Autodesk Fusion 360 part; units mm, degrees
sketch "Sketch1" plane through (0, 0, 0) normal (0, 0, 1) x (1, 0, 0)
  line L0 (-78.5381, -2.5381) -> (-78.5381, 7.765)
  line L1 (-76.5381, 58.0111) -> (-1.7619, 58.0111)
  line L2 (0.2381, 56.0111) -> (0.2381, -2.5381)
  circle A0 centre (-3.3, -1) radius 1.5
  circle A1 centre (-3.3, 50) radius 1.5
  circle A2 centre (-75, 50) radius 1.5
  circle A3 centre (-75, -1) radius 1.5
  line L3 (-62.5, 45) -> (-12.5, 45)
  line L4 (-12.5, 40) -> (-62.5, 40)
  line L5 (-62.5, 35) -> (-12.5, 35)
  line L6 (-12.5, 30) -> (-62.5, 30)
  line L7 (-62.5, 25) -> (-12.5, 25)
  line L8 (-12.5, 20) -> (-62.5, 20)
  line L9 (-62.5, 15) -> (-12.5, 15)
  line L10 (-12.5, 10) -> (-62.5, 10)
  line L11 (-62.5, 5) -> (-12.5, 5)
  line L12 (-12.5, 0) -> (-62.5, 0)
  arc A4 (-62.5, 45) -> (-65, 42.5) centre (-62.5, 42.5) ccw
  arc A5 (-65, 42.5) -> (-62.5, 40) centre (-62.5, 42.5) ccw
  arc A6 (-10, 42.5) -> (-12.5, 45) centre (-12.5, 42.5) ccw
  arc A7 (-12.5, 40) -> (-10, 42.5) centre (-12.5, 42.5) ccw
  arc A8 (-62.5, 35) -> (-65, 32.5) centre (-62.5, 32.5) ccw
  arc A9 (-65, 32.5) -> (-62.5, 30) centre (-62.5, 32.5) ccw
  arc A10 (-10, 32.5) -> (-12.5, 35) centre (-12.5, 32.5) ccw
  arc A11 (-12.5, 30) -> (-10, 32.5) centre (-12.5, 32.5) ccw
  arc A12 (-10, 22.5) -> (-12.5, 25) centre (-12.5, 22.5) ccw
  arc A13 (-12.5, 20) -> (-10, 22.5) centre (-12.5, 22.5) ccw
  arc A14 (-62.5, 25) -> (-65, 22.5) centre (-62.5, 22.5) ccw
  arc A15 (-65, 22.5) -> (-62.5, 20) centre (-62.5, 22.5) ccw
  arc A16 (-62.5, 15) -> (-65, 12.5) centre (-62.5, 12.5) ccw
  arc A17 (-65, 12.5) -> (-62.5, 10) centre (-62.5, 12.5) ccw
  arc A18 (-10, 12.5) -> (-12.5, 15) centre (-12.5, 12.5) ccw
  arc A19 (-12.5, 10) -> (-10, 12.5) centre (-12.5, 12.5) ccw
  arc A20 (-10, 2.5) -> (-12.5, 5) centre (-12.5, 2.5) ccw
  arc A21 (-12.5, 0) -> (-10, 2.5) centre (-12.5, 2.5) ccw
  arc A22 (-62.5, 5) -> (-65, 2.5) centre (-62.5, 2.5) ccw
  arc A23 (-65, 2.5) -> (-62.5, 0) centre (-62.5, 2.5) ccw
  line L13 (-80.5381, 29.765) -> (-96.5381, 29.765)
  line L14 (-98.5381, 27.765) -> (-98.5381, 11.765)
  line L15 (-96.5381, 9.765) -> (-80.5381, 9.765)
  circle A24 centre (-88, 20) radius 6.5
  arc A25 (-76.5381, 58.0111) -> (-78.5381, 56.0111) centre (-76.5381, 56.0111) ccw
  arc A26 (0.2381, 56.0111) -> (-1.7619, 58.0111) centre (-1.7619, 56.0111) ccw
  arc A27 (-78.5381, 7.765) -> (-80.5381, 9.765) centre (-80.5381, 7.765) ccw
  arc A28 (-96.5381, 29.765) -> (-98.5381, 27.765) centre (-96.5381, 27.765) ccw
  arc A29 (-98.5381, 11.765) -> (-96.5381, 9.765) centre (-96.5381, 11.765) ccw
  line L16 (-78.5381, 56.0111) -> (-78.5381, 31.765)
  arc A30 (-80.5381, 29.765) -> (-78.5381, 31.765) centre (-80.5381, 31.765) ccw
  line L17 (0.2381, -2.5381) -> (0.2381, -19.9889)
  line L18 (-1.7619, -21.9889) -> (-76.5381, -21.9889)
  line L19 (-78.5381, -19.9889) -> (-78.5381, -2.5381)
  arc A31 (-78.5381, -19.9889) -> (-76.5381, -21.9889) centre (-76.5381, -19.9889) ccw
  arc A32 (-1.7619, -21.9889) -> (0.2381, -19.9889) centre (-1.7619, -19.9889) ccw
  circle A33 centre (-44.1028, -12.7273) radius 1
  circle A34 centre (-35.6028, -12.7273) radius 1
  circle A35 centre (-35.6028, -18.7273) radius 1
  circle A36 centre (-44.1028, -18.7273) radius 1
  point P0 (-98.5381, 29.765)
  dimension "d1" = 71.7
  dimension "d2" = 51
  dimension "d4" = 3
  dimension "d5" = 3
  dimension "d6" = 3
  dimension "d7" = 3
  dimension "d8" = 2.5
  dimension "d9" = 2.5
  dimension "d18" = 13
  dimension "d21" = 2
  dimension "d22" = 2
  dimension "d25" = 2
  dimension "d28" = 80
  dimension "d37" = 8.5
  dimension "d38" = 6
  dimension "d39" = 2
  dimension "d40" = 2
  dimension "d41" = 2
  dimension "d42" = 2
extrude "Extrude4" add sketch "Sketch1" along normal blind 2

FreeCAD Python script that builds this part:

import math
import FreeCAD as App
import Part
import Sketcher

doc = App.newDocument("Part")
body = doc.addObject("PartDesign::Body", "Body")

sketch1 = doc.addObject("Sketcher::SketchObject", "Sketch")
body.addObject(sketch1)
sketch1.AttachmentSupport = (doc.XY_Plane, [""])
sketch1.MapMode = "FlatFace"
sketch1.addGeometry([
    Part.LineSegment(App.Vector(-78.5, 7.8, 0), App.Vector(-78.5, -20, 0)),
    Part.ArcOfCircle(Part.Circle(App.Vector(-76.5, -20, 0), App.Vector(0, 0, 1), 2), math.radians(180), math.radians(270)),
    Part.LineSegment(App.Vector(-76.5, -22, 0), App.Vector(-1.8, -22, 0)),
    Part.ArcOfCircle(Part.Circle(App.Vector(-1.8, -20, 0), App.Vector(0, 0, 1), 2), math.radians(-90), math.radians(0)),
    Part.LineSegment(App.Vector(0.2, -20, 0), App.Vector(0.2, 56, 0)),
    Part.ArcOfCircle(Part.Circle(App.Vector(-1.8, 56, 0), App.Vector(0, 0, 1), 2), math.radians(0), math.radians(90)),
    Part.LineSegment(App.Vector(-1.8, 58, 0), App.Vector(-76.5, 58, 0)),
    Part.ArcOfCircle(Part.Circle(App.Vector(-76.5, 56, 0), App.Vector(0, 0, 1), 2), math.radians(90), math.radians(180)),
    Part.LineSegment(App.Vector(-78.5, 56, 0), App.Vector(-78.5, 31.8, 0)),
    Part.ArcOfCircle(Part.Circle(App.Vector(-80.5, 31.8, 0), App.Vector(0, 0, 1), 2), math.radians(-90), math.radians(0)),
    Part.LineSegment(App.Vector(-80.5, 29.8, 0), App.Vector(-96.5, 29.8, 0)),
    Part.ArcOfCircle(Part.Circle(App.Vector(-96.5, 27.8, 0), App.Vector(0, 0, 1), 2), math.radians(90), math.radians(180)),
    Part.LineSegment(App.Vector(-98.5, 27.8, 0), App.Vector(-98.5, 11.8, 0)),
    Part.ArcOfCircle(Part.Circle(App.Vector(-96.5, 11.8, 0), App.Vector(0, 0, 1), 2), math.radians(180), math.radians(270)),
    Part.LineSegment(App.Vector(-96.5, 9.8, 0), App.Vector(-80.5, 9.8, 0)),
    Part.ArcOfCircle(Part.Circle(App.Vector(-80.5, 7.8, 0), App.Vector(0, 0, 1), 2), math.radians(0), math.radians(90)),
    Part.Circle(App.Vector(-75, -1, 0), App.Vector(0, 0, 1), 1.5),
    Part.Circle(App.Vector(-44.1, -18.7, 0), App.Vector(0, 0, 1), 1),
    Part.Circle(App.Vector(-44.1, -12.7, 0), App.Vector(0, 0, 1), 1),
    Part.Circle(App.Vector(-35.6, -18.7, 0), App.Vector(0, 0, 1), 1),
    Part.Circle(App.Vector(-35.6, -12.7, 0), App.Vector(0, 0, 1), 1),
    Part.ArcOfCircle(Part.Circle(App.Vector(-62.5, 2.5, 0), App.Vector(0, 0, 1), 2.5), math.radians(90), math.radians(270)),
    Part.LineSegment(App.Vector(-62.5, 5, 0), App.Vector(-12.5, 5, 0)),
    Part.ArcOfCircle(Part.Circle(App.Vector(-12.5, 2.5, 0), App.Vector(0, 0, 1), 2.5), math.radians(-90), math.radians(90)),
    Part.LineSegment(App.Vector(-12.5, 0, 0), App.Vector(-62.5, 0, 0)),
    Part.ArcOfCircle(Part.Circle(App.Vector(-62.5, 12.5, 0), App.Vector(0, 0, 1), 2.5), math.radians(90), math.radians(270)),
    Part.LineSegment(App.Vector(-62.5, 15, 0), App.Vector(-12.5, 15, 0)),
    Part.ArcOfCircle(Part.Circle(App.Vector(-12.5, 12.5, 0), App.Vector(0, 0, 1), 2.5), math.radians(-90), math.radians(90)),
    Part.LineSegment(App.Vector(-12.5, 10, 0), App.Vector(-62.5, 10, 0)),
    Part.Circle(App.Vector(-3.3, -1, 0), App.Vector(0, 0, 1), 1.5),
    Part.Circle(App.Vector(-88, 20, 0), App.Vector(0, 0, 1), 6.5),
    Part.Circle(App.Vector(-75, 50, 0), App.Vector(0, 0, 1), 1.5),
    Part.ArcOfCircle(Part.Circle(App.Vector(-62.5, 22.5, 0), App.Vector(0, 0, 1), 2.5), math.radians(90), math.radians(270)),
    Part.LineSegment(App.Vector(-62.5, 25, 0), App.Vector(-12.5, 25, 0)),
    Part.ArcOfCircle(Part.Circle(App.Vector(-12.5, 22.5, 0), App.Vector(0, 0, 1), 2.5), math.radians(-90), math.radians(90)),
    Part.LineSegment(App.Vector(-12.5, 20, 0), App.Vector(-62.5, 20, 0)),
    Part.ArcOfCircle(Part.Circle(App.Vector(-62.5, 32.5, 0), App.Vector(0, 0, 1), 2.5), math.radians(90), math.radians(270)),
    Part.LineSegment(App.Vector(-62.5, 35, 0), App.Vector(-12.5, 35, 0)),
    Part.ArcOfCircle(Part.Circle(App.Vector(-12.5, 32.5, 0), App.Vector(0, 0, 1), 2.5), math.radians(-90), math.radians(90)),
    Part.LineSegment(App.Vector(-12.5, 30, 0), App.Vector(-62.5, 30, 0)),
    Part.ArcOfCircle(Part.Circle(App.Vector(-62.5, 42.5, 0), App.Vector(0, 0, 1), 2.5), math.radians(90), math.radians(270)),
    Part.LineSegment(App.Vector(-62.5, 45, 0), App.Vector(-12.5, 45, 0)),
    Part.ArcOfCircle(Part.Circle(App.Vector(-12.5, 42.5, 0), App.Vector(0, 0, 1), 2.5), math.radians(-90), math.radians(90)),
    Part.LineSegment(App.Vector(-12.5, 40, 0), App.Vector(-62.5, 40, 0)),
    Part.Circle(App.Vector(-3.3, 50, 0), App.Vector(0, 0, 1), 1.5),
], False)
sketch1.addConstraint([
    Sketcher.Constraint("Tangent", 0, 2, 1, 1),
    Sketcher.Constraint("Tangent", 1, 2, 2, 1),
    Sketcher.Constraint("Tangent", 2, 2, 3, 1),
    Sketcher.Constraint("Tangent", 3, 2, 4, 1),
    Sketcher.Constraint("Tangent", 4, 2, 5, 1),
    Sketcher.Constraint("Tangent", 5, 2, 6, 1),
    Sketcher.Constraint("Tangent", 6, 2, 7, 1),
    Sketcher.Constraint("Tangent", 7, 2, 8, 1),
    Sketcher.Constraint("Tangent", 8, 2, 9, 2),
    Sketcher.Constraint("Tangent", 9, 1, 10, 1),
    Sketcher.Constraint("Tangent", 10, 2, 11, 1),
    Sketcher.Constraint("Tangent", 11, 2, 12, 1),
    Sketcher.Constraint("Tangent", 12, 2, 13, 1),
    Sketcher.Constraint("Tangent", 13, 2, 14, 1),
    Sketcher.Constraint("Tangent", 14, 2, 15, 2),
    Sketcher.Constraint("Tangent", 15, 1, 0, 1),
    Sketcher.Constraint("Tangent", 21, 1, 22, 1),
    Sketcher.Constraint("Tangent", 22, 2, 23, 2),
    Sketcher.Constraint("Tangent", 23, 1, 24, 1),
    Sketcher.Constraint("Tangent", 24, 2, 21, 2),
    Sketcher.Constraint("Tangent", 25, 1, 26, 1),
    Sketcher.Constraint("Tangent", 26, 2, 27, 2),
    Sketcher.Constraint("Tangent", 27, 1, 28, 1),
    Sketcher.Constraint("Tangent", 28, 2, 25, 2),
    Sketcher.Constraint("Tangent", 32, 1, 33, 1),
    Sketcher.Constraint("Tangent", 33, 2, 34, 2),
    Sketcher.Constraint("Tangent", 34, 1, 35, 1),
    Sketcher.Constraint("Tangent", 35, 2, 32, 2),
    Sketcher.Constraint("Tangent", 36, 1, 37, 1),
    Sketcher.Constraint("Tangent", 37, 2, 38, 2),
    Sketcher.Constraint("Tangent", 38, 1, 39, 1),
    Sketcher.Constraint("Tangent", 39, 2, 36, 2),
    Sketcher.Constraint("Tangent", 40, 1, 41, 1),
    Sketcher.Constraint("Tangent", 41, 2, 42, 2),
    Sketcher.Constraint("Tangent", 42, 1, 43, 1),
    Sketcher.Constraint("Tangent", 43, 2, 40, 2),
    Sketcher.Constraint("Vertical", 0),
    Sketcher.Constraint("Horizontal", 2),
    Sketcher.Constraint("Vertical", 4),
    Sketcher.Constraint("Horizontal", 6),
    Sketcher.Constraint("Vertical", 8),
    Sketcher.Constraint("Horizontal", 10),
    Sketcher.Constraint("Vertical", 12),
    Sketcher.Constraint("Horizontal", 14),
    Sketcher.Constraint("Horizontal", 22),
    Sketcher.Constraint("Horizontal", 24),
    Sketcher.Constraint("Horizontal", 26),
    Sketcher.Constraint("Horizontal", 28),
    Sketcher.Constraint("Horizontal", 33),
    Sketcher.Constraint("Horizontal", 35),
    Sketcher.Constraint("Horizontal", 37),
    Sketcher.Constraint("Horizontal", 39),
    Sketcher.Constraint("Horizontal", 41),
    Sketcher.Constraint("Horizontal", 43),
    Sketcher.Constraint("Equal", 1, 3),
    Sketcher.Constraint("Equal", 3, 5),
    Sketcher.Constraint("Equal", 5, 7),
    Sketcher.Constraint("Equal", 7, 9),
    Sketcher.Constraint("Equal", 9, 11),
    Sketcher.Constraint("Equal", 11, 13),
    Sketcher.Constraint("Equal", 13, 15),
    Sketcher.Constraint("Equal", 17, 18),
    Sketcher.Constraint("Equal", 18, 19),
    Sketcher.Constraint("Equal", 19, 20),
    Sketcher.Constraint("Equal", 23, 25),
    Sketcher.Constraint("Equal", 16, 29),
    Sketcher.Constraint("Equal", 29, 31),
    Sketcher.Constraint("Equal", 27, 32),
    Sketcher.Constraint("Equal", 34, 36),
    Sketcher.Constraint("Equal", 38, 40),
    Sketcher.Constraint("Equal", 31, 44),
    Sketcher.Constraint("PointOnObject", 23, 1, -1),
    Sketcher.Constraint("Horizontal", 17, 3, 19, 3),
    Sketcher.Constraint("Horizontal", 18, 3, 20, 3),
    Sketcher.Constraint("Horizontal", 16, 3, 29, 3),
    Sketcher.Constraint("Horizontal", 31, 3, 44, 3),
    Sketcher.Constraint("Horizontal", 30, 3, 34, 1),
    Sketcher.Constraint("Vertical", 1, 3, 7, 3),
    Sketcher.Constraint("Vertical", 17, 3, 18, 3),
    Sketcher.Constraint("Vertical", 19, 3, 20, 3),
    Sketcher.Constraint("Vertical", 21, 3, 25, 3),
    Sketcher.Constraint("Vertical", 23, 3, 27, 3),
    Sketcher.Constraint("Vertical", 16, 3, 31, 3),
    Sketcher.Constraint("Vertical", 25, 3, 32, 3),
    Sketcher.Constraint("Vertical", 27, 3, 34, 3),
    Sketcher.Constraint("Vertical", 32, 3, 36, 3),
    Sketcher.Constraint("Vertical", 34, 3, 38, 3),
    Sketcher.Constraint("Vertical", 36, 3, 40, 3),
    Sketcher.Constraint("Vertical", 38, 3, 42, 3),
    Sketcher.Constraint("Vertical", 29, 3, 44, 3),
    Sketcher.Constraint("Equal", 14, 12),
    Sketcher.Constraint("Diameter", 16, 3.0),
    Sketcher.Constraint("Diameter", 17, 2.0),
    Sketcher.Constraint("Diameter", 30, 13.0),
    Sketcher.Constraint("Radius", 1, 2.0),
    Sketcher.Constraint("Radius", 21, 2.5),
    Sketcher.Constraint("DistanceX", 10, 2, 10, 1, 16.0),
    Sketcher.Constraint("DistanceX", 22, 1, 22, 2, 50.0),
    Sketcher.Constraint("DistanceY", 4, 1, 4, 2, 76.0),
    Sketcher.Constraint("DistanceX", 16, 3, -1, 1, 75.0),
    Sketcher.Constraint("DistanceY", 16, 3, -1, 1, 1.0),
    Sketcher.Constraint("DistanceX", 30, 3, -1, 1, 88.0),
    Sketcher.Constraint("DistanceY", -1, 1, 30, 3, 20.0),
    Sketcher.Constraint("DistanceY", -1, 1, 31, 3, 50.0),
    Sketcher.Constraint("DistanceY", -1, 1, 25, 1, 15.0),
    Sketcher.Constraint("DistanceY", -1, 1, 36, 1, 35.0),
    Sketcher.Constraint("DistanceY", -1, 1, 40, 1, 45.0),
    Sketcher.Constraint("DistanceX", 21, 3, -1, 1, 62.5),
    Sketcher.Constraint("DistanceX", 29, 3, -1, 1, 3.3),
    Sketcher.Constraint("DistanceY", 0, 2, 0, 1, 27.754),
    Sketcher.Constraint("DistanceX", 2, 1, 2, 2, 74.7762),
    Sketcher.Constraint("DistanceX", 1, 3, -1, 1, 76.538),
    Sketcher.Constraint("DistanceY", 1, 3, -1, 1, 19.989),
    Sketcher.Constraint("DistanceX", 17, 3, -1, 1, 44.1028),
    Sketcher.Constraint("DistanceY", 17, 3, -1, 1, 18.7273),
    Sketcher.Constraint("DistanceY", 18, 3, -1, 1, 12.7273),
    Sketcher.Constraint("DistanceX", 19, 3, -1, 1, 35.6028),
])
pad1 = doc.addObject("PartDesign::Pad", "Pad")
body.addObject(pad1)
pad1.Profile = sketch1
pad1.Length = 2

doc.recompute()
